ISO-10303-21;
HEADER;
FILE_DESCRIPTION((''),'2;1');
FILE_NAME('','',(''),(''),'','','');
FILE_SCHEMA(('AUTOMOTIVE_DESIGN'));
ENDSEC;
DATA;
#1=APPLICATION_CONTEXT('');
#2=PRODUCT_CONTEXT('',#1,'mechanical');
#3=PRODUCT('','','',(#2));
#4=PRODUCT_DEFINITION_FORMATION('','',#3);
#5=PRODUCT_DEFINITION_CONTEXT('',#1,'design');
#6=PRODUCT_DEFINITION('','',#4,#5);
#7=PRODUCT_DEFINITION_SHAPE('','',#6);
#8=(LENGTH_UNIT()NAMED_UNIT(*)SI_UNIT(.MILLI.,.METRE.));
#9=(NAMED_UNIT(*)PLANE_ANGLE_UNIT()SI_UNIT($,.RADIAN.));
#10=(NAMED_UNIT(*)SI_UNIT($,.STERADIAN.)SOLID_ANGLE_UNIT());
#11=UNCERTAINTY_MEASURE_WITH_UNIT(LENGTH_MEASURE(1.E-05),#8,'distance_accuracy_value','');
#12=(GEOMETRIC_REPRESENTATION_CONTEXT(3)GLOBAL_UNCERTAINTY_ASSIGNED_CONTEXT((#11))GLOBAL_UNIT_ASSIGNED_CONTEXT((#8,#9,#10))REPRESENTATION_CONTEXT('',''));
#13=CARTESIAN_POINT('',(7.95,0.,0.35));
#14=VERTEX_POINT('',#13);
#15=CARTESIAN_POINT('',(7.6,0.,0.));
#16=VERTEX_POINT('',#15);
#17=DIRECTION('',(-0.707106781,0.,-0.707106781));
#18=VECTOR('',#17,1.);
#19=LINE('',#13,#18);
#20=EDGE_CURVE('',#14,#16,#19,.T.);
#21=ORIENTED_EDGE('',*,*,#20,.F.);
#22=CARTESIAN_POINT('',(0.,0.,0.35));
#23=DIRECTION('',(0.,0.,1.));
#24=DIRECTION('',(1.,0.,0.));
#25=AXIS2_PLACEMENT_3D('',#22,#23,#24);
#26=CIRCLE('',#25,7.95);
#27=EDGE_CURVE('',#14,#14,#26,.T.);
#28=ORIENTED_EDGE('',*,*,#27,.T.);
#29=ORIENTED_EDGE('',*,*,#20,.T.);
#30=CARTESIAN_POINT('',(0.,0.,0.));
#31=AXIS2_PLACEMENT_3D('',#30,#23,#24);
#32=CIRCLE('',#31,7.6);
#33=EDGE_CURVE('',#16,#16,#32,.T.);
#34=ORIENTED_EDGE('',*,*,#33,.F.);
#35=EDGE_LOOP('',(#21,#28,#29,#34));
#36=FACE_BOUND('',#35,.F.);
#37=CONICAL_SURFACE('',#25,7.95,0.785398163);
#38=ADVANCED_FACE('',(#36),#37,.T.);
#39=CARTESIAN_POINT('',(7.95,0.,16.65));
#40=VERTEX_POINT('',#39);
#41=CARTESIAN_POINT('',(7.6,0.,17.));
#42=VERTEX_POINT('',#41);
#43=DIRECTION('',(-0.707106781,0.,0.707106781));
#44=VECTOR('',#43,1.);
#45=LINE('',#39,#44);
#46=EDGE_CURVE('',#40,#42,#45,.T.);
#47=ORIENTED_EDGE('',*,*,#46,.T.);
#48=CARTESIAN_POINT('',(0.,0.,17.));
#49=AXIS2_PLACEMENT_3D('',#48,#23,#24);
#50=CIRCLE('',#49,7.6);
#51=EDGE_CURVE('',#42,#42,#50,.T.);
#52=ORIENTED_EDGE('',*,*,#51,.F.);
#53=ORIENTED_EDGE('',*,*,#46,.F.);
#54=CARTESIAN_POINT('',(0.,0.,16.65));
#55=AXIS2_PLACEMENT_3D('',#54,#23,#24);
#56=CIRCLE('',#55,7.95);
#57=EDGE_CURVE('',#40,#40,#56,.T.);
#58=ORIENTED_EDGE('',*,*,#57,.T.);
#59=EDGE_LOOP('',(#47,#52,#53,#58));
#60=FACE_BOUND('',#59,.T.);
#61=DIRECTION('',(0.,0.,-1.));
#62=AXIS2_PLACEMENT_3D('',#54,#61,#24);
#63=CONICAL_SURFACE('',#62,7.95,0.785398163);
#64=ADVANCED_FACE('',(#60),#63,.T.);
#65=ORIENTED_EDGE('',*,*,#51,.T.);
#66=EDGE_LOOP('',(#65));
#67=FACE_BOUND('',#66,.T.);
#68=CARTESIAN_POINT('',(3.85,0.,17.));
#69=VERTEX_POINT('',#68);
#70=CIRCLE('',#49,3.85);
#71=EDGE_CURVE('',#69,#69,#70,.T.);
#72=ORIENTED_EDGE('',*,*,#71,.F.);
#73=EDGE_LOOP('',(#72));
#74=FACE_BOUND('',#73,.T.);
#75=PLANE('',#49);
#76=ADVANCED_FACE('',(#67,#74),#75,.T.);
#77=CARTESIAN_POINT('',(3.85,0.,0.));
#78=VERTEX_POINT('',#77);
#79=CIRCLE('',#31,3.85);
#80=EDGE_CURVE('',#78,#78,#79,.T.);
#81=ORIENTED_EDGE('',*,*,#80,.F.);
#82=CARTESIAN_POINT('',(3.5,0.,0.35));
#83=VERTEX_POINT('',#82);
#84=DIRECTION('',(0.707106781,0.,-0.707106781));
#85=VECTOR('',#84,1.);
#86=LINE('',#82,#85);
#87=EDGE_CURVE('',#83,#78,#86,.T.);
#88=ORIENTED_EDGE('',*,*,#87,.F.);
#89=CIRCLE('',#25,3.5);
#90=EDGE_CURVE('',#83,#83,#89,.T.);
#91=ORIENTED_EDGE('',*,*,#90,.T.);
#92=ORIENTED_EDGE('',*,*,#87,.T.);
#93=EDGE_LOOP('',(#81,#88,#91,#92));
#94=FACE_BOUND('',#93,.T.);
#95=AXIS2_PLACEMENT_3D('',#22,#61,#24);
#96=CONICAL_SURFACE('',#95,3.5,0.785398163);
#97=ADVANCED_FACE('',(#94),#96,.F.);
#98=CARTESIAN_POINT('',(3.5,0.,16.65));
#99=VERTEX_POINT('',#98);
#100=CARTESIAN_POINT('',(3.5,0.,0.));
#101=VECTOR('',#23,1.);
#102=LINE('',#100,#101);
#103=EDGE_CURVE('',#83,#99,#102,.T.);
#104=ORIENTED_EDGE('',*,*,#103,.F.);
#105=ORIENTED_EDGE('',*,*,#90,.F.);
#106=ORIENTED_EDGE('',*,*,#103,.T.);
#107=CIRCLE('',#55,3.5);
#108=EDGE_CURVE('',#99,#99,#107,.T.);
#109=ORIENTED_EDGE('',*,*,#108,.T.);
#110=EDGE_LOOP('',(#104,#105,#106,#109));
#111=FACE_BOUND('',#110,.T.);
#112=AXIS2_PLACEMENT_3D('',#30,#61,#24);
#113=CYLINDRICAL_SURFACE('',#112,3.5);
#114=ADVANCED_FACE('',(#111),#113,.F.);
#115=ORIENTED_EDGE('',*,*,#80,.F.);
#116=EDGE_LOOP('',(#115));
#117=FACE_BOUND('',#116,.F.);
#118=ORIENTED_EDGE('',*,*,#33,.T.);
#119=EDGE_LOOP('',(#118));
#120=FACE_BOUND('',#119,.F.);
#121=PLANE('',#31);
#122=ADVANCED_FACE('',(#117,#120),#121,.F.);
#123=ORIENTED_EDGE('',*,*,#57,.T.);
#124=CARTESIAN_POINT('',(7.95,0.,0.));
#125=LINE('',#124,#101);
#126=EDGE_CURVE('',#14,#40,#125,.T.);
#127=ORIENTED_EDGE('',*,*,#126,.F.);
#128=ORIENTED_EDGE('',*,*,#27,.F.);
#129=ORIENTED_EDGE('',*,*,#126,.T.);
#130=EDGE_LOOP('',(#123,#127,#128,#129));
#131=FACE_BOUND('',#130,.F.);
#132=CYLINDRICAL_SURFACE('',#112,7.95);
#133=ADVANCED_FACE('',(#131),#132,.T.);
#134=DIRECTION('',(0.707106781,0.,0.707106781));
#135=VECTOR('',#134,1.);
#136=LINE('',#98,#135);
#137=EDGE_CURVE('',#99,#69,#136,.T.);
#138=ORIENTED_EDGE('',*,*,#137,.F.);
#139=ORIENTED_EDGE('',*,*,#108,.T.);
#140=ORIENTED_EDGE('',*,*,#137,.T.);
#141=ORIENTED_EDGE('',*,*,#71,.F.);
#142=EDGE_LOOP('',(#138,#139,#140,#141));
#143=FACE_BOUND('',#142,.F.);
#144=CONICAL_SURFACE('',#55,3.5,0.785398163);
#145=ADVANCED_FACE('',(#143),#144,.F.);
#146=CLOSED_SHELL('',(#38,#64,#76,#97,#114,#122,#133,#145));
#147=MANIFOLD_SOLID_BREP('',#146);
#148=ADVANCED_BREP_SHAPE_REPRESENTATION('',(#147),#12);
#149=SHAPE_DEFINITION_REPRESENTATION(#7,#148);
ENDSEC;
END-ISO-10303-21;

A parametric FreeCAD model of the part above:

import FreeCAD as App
import Part
import Sketcher
from FreeCAD import Vector


def edges_at(feature, points):
    """Names of the edges that pass closest to the given points."""
    edges = feature.Shape.Edges
    near = lambda p: min(range(len(edges)), key=lambda i: edges[i].distToShape(Part.Vertex(*p))[0])
    return sorted({f"Edge{near(p) + 1}" for p in points})

doc = App.newDocument("Part")
params = doc.addObject("Spreadsheet::Sheet", "Params")
for row, (alias, value) in enumerate([
    ("sketch1_diameter", "7 mm"),
    ("sketch1_diameter2", "15.9 mm"),
    ("pad1_length", "17 mm"),
    ("chamfer_size", "0.35 mm"),
], start=1):
    params.set(f"A{row}", alias)
    params.set(f"B{row}", "=" + value)
    params.setAlias(f"B{row}", alias)

body = doc.addObject("PartDesign::Body", "Body")

# Sketch on XY plane
sketch1 = doc.addObject("Sketcher::SketchObject", "Sketch")
body.addObject(sketch1)
sketch1.AttachmentSupport = (doc.XY_Plane, [""])
sketch1.MapMode = "FlatFace"
sketch1.addGeometry([
    Part.Circle(Vector(0, 0, 0), Vector(0, 0, 1), 7.95),
    Part.Circle(Vector(0, 0, 0), Vector(0, 0, 1), 3.5),
], False)
sketch1.addConstraint([
    Sketcher.Constraint("Coincident", 0, 3, -1, 1),
    Sketcher.Constraint("Coincident", 1, 3, -1, 1),
    Sketcher.Constraint("Diameter", 1, 7.0),
    Sketcher.Constraint("Diameter", 0, 15.9),
])
sketch1.setExpression("Constraints[2]", "Params.sketch1_diameter")
sketch1.setExpression("Constraints[3]", "Params.sketch1_diameter2")
pad1 = doc.addObject("PartDesign::Pad", "Pad")
body.addObject(pad1)
pad1.Profile = sketch1
pad1.setExpression("Length", "Params.pad1_length")
doc.recompute()

chamfer = doc.addObject("PartDesign::Chamfer", "Chamfer")
body.addObject(chamfer)
chamfer.Base = (pad1, edges_at(pad1, [
    (-3.263, 1.266, 17),
    (-3.263, 1.266, 0),
    (-7.412, -2.875, 0),
    (-7.412, -2.875, 17),
]))
chamfer.setExpression("Size", "Params.chamfer_size")

doc.recompute()
